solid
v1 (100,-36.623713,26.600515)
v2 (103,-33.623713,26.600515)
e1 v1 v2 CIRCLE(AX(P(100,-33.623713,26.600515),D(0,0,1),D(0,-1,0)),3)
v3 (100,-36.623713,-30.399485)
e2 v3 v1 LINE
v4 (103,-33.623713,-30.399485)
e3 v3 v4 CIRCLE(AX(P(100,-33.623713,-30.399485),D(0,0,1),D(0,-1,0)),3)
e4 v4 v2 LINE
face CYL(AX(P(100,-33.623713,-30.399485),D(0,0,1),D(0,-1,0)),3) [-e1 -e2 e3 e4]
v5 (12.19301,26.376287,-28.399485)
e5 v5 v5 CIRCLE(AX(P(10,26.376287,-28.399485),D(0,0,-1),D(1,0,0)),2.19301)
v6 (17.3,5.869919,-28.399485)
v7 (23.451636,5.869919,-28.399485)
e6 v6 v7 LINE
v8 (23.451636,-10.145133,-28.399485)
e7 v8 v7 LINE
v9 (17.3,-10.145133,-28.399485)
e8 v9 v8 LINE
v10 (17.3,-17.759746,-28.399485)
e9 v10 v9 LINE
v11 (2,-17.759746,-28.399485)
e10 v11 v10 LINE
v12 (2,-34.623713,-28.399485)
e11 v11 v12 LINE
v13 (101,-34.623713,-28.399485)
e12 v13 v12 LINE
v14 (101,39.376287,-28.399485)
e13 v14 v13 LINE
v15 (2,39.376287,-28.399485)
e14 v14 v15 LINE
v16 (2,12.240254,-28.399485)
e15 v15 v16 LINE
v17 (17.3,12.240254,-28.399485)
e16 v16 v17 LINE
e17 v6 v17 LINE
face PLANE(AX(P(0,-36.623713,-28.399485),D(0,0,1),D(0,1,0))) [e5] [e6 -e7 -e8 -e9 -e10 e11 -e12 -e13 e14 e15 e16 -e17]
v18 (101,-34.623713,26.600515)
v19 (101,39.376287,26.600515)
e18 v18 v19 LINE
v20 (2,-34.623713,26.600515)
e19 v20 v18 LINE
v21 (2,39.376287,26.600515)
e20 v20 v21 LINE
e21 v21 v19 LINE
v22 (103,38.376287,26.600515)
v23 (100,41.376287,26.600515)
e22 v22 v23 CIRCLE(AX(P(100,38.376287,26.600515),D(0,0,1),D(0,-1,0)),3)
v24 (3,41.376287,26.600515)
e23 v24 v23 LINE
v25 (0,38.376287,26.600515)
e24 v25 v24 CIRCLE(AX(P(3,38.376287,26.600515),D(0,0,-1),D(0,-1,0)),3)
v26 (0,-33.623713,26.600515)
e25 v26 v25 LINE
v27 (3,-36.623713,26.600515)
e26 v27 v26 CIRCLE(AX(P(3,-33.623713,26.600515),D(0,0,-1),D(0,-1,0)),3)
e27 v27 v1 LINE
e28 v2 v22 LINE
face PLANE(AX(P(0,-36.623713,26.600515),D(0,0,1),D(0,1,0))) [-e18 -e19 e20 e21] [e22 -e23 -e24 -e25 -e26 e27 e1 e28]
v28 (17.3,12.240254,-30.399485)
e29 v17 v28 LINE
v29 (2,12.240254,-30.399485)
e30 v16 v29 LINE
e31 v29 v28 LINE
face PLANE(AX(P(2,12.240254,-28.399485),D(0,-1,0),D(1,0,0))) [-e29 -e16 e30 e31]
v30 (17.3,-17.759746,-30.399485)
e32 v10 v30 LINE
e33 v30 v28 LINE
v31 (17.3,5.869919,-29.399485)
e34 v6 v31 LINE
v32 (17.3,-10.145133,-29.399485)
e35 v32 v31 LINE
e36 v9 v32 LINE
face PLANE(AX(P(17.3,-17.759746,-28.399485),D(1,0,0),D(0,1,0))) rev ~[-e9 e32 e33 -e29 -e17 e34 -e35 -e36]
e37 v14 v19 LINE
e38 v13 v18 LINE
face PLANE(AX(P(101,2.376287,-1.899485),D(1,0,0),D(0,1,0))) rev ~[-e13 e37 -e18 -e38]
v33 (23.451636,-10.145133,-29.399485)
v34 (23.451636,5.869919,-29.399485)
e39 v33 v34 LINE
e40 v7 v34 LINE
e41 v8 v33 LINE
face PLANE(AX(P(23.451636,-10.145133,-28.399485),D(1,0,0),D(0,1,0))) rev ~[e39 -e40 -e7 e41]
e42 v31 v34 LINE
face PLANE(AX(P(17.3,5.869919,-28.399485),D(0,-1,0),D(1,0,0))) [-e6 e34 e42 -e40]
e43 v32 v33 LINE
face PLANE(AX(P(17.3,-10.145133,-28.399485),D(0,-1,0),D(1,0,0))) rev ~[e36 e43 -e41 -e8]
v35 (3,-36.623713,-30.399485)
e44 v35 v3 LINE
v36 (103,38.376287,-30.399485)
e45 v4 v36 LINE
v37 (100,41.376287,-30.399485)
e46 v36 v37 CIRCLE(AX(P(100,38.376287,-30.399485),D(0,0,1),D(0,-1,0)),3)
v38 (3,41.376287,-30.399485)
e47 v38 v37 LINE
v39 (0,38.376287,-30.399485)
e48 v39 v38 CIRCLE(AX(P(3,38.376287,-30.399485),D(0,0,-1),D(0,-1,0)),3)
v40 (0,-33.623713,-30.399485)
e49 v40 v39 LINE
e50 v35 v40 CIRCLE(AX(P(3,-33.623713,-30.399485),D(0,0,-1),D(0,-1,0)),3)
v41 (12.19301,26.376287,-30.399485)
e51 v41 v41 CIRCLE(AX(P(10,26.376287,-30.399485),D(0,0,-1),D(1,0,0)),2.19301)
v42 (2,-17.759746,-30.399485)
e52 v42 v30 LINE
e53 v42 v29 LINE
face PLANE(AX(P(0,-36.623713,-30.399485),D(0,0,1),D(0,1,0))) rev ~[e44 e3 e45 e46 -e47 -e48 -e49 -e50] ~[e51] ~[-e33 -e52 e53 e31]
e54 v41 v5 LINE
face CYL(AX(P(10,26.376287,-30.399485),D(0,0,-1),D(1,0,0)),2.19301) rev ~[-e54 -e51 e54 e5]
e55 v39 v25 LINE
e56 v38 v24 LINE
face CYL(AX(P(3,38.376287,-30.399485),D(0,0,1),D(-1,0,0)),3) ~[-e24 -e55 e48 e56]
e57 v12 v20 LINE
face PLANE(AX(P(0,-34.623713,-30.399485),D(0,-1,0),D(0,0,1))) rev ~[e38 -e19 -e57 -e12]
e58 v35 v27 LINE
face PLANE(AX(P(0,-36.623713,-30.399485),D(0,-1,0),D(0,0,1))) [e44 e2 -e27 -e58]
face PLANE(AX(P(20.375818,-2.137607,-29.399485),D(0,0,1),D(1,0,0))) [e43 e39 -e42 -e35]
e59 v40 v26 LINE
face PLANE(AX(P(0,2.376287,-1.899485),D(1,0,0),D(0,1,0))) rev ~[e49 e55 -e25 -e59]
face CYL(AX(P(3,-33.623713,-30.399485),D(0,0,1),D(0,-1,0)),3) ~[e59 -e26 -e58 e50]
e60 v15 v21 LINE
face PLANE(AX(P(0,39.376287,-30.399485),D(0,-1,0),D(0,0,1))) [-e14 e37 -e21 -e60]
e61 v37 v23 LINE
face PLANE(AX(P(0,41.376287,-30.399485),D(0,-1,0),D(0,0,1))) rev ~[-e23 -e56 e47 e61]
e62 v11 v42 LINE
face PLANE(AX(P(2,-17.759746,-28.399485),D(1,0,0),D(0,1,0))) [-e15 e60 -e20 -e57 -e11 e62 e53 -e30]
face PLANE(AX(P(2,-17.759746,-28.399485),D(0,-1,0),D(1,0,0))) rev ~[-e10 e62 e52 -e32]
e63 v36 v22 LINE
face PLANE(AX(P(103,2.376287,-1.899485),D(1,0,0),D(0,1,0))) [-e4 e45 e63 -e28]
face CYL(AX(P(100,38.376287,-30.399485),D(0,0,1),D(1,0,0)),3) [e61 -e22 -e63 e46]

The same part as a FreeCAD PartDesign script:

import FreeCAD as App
import Part
import Sketcher
from FreeCAD import Vector


def edges_at(feature, points):
    """Names of the edges that pass closest to the given points."""
    edges = feature.Shape.Edges
    near = lambda p: min(range(len(edges)), key=lambda i: edges[i].distToShape(Part.Vertex(*p))[0])
    return sorted({f"Edge{near(p) + 1}" for p in points})


def faces_at(feature, points):
    """Names of the faces that lie closest to the given points."""
    faces = feature.Shape.Faces
    near = lambda p: min(range(len(faces)), key=lambda i: faces[i].distToShape(Part.Vertex(*p))[0])
    return sorted({f"Face{near(p) + 1}" for p in points})


def add_polygon(sketch, points):
    """Adds a closed chain of lines whose ends are joined by coincident constraints."""
    first, n = sketch.GeometryCount, len(points)
    for a, b in zip(points, points[1:] + points[:1]):
        sketch.addGeometry(Part.LineSegment(App.Vector(*a, 0), App.Vector(*b, 0)), False)
    for i in range(n):
        sketch.addConstraint(Sketcher.Constraint("Coincident", first + i, 2, first + (i + 1) % n, 1))

doc = App.newDocument("Part")
body = doc.addObject("PartDesign::Body", "Body")

# Sketch on YZ plane
sketch1 = body.newObject("Sketcher::SketchObject", "Sketch")
sketch1.AttachmentSupport = (doc.getObject("YZ_Plane"), [""])
sketch1.MapMode = "FlatFace"
add_polygon(sketch1, [(-36.623713, 26.600515), (-36.623713, -30.399485), (41.376287, -30.399485), (41.376287, 26.600515)])  # lines 0-3
sketch1.addConstraint([
    Sketcher.Constraint("Vertical", 0),
    Sketcher.Constraint("Horizontal", 1),
    Sketcher.Constraint("Vertical", 2),
    Sketcher.Constraint("Horizontal", 3),
    Sketcher.Constraint("DistanceX", 1, 1, 1, 2, 78.0),
    Sketcher.Constraint("DistanceY", 0, 2, 0, 1, 57.0),
    Sketcher.Constraint("DistanceX", 0, 2, -1, 1, 36.623713),
    Sketcher.Constraint("DistanceY", 0, 2, -1, 1, 30.399485),
])
pad1 = body.newObject("PartDesign::Pad", "Pad")
pad1.Profile = sketch1
pad1.Length = 103
doc.recompute()

thickness = body.newObject("PartDesign::Thickness", "Thickness")
thickness.Base = (pad1, faces_at(pad1, [(51.5, 2.376, 26.601)]))
thickness.Value = 2
thickness.Reversed = True
thickness.Join = "Arc"

# Sketch on XY plane
sketch2 = body.newObject("Sketcher::SketchObject", "Sketch001")
sketch2.AttachmentSupport = (doc.getObject("XY_Plane"), [""])
sketch2.MapMode = "FlatFace"
sketch2.AttachmentOffset = App.Placement(Vector(0, 0, -28.399485), App.Rotation())
add_polygon(sketch2, [(2, 12.240254), (2, -17.759746), (17.3, -17.759746), (17.3, 12.240254)])  # lines 0-3
sketch2.addConstraint([
    Sketcher.Constraint("Vertical", 0),
    Sketcher.Constraint("Horizontal", 1),
    Sketcher.Constraint("Vertical", 2),
    Sketcher.Constraint("Horizontal", 3),
    Sketcher.Constraint("DistanceY", 0, 2, 0, 1, 30.0),
    Sketcher.Constraint("DistanceX", 1, 1, 1, 2, 15.3),
    Sketcher.Constraint("DistanceX", -1, 1, 0, 2, 2.0),
    Sketcher.Constraint("DistanceY", 0, 2, -1, 1, 17.759746),
])
pocket1 = body.newObject("PartDesign::Pocket", "Pocket")
pocket1.Profile = sketch2
pocket1.Length = 2

# Sketch on XY plane
sketch3 = body.newObject("Sketcher::SketchObject", "Sketch002")
sketch3.AttachmentSupport = (doc.getObject("XY_Plane"), [""])
sketch3.MapMode = "FlatFace"
sketch3.AttachmentOffset = App.Placement(Vector(0, 0, -28.399485), App.Rotation())
add_polygon(sketch3, [(17.3, 5.869919), (17.3, -10.145133), (23.451636, -10.145133), (23.451636, 5.869919)])  # lines 0-3
sketch3.addConstraint([
    Sketcher.Constraint("Vertical", 0),
    Sketcher.Constraint("Horizontal", 1),
    Sketcher.Constraint("Vertical", 2),
    Sketcher.Constraint("Horizontal", 3),
    Sketcher.Constraint("DistanceX", -1, 1, 0, 2, 17.3),
    Sketcher.Constraint("DistanceX", 1, 1, 1, 2, 6.151636),
    Sketcher.Constraint("DistanceY", 0, 2, 0, 1, 16.015052),
    Sketcher.Constraint("DistanceY", -1, 1, 2, 2, 5.869919),
])
pocket2 = body.newObject("PartDesign::Pocket", "Pocket001")
pocket2.Profile = sketch3
pocket2.Length = 1
doc.recompute()

fillet = body.newObject("PartDesign::Fillet", "Fillet")
fillet.Base = (pocket2, edges_at(pocket2, [
    (0, -36.624, -1.899),
    (0, 41.376, -1.899),
    (103, 41.376, -1.899),
    (103, -36.624, -1.899),
]))
fillet.Radius = 3

# Sketch on XY plane
sketch4 = body.newObject("Sketcher::SketchObject", "Sketch003")
sketch4.AttachmentSupport = (doc.getObject("XY_Plane"), [""])
sketch4.MapMode = "FlatFace"
sketch4.AttachmentOffset = App.Placement(Vector(0, 0, -30.399485), App.Rotation())
sketch4.addGeometry(Part.Circle(Vector(10, 26.376287, 0), Vector(0, 0, 1), 2.19301), False)
sketch4.addConstraint([
    Sketcher.Constraint("DistanceX", -1, 1, 0, 3, 10.0),
    Sketcher.Constraint("Diameter", 0, 4.38602),
    Sketcher.Constraint("DistanceY", -1, 1, 0, 3, 26.376287),
])
pocket3 = body.newObject("PartDesign::Pocket", "Pocket002")
pocket3.Profile = sketch4
pocket3.Length = 25
pocket3.Reversed = True

doc.recompute()
